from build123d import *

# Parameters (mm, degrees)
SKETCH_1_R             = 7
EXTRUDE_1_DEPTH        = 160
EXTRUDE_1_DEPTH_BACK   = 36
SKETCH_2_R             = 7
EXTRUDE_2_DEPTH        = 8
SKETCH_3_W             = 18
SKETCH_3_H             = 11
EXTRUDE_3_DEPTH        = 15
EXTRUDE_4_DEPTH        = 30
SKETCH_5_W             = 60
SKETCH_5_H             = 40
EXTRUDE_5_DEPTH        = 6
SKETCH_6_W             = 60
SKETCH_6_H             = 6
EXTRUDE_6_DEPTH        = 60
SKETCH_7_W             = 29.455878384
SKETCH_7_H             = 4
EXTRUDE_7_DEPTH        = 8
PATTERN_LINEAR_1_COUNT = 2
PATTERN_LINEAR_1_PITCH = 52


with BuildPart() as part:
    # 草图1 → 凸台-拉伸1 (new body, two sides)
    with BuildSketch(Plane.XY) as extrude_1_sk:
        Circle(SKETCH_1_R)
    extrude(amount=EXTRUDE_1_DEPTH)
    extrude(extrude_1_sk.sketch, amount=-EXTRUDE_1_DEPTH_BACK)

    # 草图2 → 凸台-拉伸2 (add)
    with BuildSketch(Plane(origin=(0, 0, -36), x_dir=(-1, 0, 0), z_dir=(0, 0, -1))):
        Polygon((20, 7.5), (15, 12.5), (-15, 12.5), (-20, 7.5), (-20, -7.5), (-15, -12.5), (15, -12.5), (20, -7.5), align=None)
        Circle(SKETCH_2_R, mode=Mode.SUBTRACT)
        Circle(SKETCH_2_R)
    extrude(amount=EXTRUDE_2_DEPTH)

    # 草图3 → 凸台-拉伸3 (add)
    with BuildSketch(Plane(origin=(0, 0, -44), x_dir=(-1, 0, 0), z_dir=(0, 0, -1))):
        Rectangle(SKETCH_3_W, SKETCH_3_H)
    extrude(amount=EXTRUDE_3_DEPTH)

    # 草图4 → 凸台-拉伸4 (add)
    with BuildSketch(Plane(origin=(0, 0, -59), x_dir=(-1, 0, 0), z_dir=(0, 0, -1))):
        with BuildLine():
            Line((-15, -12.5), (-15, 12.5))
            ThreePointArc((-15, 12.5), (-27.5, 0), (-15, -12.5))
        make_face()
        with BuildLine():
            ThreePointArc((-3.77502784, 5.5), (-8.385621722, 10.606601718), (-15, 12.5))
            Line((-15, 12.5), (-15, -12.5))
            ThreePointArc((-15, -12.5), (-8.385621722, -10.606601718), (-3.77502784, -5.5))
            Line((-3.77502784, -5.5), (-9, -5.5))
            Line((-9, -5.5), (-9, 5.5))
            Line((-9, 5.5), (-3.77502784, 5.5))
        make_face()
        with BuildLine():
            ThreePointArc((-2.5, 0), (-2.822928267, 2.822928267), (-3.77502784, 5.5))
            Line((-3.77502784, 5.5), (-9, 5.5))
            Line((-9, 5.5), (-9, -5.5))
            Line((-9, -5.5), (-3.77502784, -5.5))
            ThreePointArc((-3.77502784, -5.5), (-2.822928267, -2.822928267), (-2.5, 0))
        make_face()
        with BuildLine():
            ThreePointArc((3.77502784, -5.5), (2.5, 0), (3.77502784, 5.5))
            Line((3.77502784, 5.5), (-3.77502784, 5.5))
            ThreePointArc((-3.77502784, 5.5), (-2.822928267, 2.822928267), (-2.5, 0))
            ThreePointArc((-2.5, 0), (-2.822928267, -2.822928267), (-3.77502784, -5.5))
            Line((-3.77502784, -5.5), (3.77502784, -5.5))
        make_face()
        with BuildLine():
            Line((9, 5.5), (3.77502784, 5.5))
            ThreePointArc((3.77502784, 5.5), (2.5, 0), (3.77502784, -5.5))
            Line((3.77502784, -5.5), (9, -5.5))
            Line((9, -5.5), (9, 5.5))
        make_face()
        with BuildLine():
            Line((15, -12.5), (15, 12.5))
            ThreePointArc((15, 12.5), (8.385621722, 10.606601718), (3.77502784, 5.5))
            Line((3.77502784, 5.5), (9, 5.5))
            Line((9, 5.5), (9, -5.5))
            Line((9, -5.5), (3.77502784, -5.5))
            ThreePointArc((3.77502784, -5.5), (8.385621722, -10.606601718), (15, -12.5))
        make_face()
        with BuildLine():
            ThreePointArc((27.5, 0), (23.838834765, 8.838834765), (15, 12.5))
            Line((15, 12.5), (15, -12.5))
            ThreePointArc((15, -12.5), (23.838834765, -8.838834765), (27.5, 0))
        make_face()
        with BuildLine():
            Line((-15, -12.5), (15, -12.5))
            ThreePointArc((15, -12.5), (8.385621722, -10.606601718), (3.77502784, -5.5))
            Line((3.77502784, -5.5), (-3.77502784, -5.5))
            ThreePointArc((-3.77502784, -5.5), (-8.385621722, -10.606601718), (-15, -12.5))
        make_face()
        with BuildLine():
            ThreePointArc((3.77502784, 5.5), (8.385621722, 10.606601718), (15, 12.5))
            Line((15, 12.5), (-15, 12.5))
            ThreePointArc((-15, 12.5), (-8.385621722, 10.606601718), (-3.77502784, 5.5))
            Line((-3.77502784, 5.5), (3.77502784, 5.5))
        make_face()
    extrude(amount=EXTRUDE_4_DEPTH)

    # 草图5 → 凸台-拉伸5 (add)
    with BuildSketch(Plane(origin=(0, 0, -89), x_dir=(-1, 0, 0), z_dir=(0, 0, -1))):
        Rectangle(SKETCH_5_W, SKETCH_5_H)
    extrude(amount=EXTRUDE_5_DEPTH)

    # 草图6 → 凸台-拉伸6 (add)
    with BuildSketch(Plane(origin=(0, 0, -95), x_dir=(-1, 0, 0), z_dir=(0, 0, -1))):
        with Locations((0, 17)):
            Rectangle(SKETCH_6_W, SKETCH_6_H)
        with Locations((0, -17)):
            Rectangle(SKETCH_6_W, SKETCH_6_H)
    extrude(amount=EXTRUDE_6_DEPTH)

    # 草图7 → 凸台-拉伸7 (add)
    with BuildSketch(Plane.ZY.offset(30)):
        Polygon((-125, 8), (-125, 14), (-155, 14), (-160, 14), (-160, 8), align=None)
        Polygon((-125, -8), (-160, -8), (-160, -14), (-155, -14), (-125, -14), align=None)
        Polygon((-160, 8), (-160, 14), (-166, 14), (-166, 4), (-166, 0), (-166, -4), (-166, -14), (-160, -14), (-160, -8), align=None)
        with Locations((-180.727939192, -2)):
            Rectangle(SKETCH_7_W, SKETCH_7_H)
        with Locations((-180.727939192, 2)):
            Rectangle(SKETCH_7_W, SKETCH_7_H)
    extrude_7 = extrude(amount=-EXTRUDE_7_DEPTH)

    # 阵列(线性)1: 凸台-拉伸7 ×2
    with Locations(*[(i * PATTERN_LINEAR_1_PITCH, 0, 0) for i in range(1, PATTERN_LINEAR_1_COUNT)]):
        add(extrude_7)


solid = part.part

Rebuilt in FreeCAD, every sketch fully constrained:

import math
import FreeCAD as App
import Part
import Sketcher

doc = App.newDocument("Part")
body = doc.addObject("PartDesign::Body", "Body")

sketch1 = doc.addObject("Sketcher::SketchObject", "Sketch")
body.addObject(sketch1)
sketch1.AttachmentSupport = (doc.XY_Plane, [""])
sketch1.MapMode = "FlatFace"
sketch1.addGeometry(Part.Circle(App.Vector(0, 0, 0), App.Vector(0, 0, 1), 7), False)
sketch1.addConstraint(Sketcher.Constraint("Coincident", 0, 3, -1, 1))
sketch1.addConstraint(Sketcher.Constraint("Diameter", 0, 14.0))
pad1 = doc.addObject("PartDesign::Pad", "Pad")
body.addObject(pad1)
pad1.Profile = sketch1
pad1.Type = "TwoLengths"
pad1.Length = 160
pad1.Length2 = 36

sketch2 = doc.addObject("Sketcher::SketchObject", "Sketch001")
body.addObject(sketch2)
sketch2.AttachmentSupport = (doc.XY_Plane, [""])
sketch2.MapMode = "FlatFace"
sketch2.AttachmentOffset = App.Placement(App.Vector(0, 0, -36), App.Rotation())
sketch2.addGeometry(Part.LineSegment(App.Vector(-20, 7.5, 0), App.Vector(-15, 12.5, 0)), False)
sketch2.addGeometry(Part.LineSegment(App.Vector(-15, 12.5, 0), App.Vector(15, 12.5, 0)), False)
sketch2.addGeometry(Part.LineSegment(App.Vector(15, 12.5, 0), App.Vector(20, 7.5, 0)), False)
sketch2.addGeometry(Part.LineSegment(App.Vector(20, 7.5, 0), App.Vector(20, -7.5, 0)), False)
sketch2.addGeometry(Part.LineSegment(App.Vector(20, -7.5, 0), App.Vector(15, -12.5, 0)), False)
sketch2.addGeometry(Part.LineSegment(App.Vector(15, -12.5, 0), App.Vector(-15, -12.5, 0)), False)
sketch2.addGeometry(Part.LineSegment(App.Vector(-15, -12.5, 0), App.Vector(-20, -7.5, 0)), False)
sketch2.addGeometry(Part.LineSegment(App.Vector(-20, -7.5, 0), App.Vector(-20, 7.5, 0)), False)
sketch2.addConstraint(Sketcher.Constraint("Coincident", 0, 2, 1, 1))
sketch2.addConstraint(Sketcher.Constraint("Coincident", 1, 2, 2, 1))
sketch2.addConstraint(Sketcher.Constraint("Coincident", 2, 2, 3, 1))
sketch2.addConstraint(Sketcher.Constraint("Coincident", 3, 2, 4, 1))
sketch2.addConstraint(Sketcher.Constraint("Coincident", 4, 2, 5, 1))
sketch2.addConstraint(Sketcher.Constraint("Coincident", 5, 2, 6, 1))
sketch2.addConstraint(Sketcher.Constraint("Coincident", 6, 2, 7, 1))
sketch2.addConstraint(Sketcher.Constraint("Coincident", 7, 2, 0, 1))
sketch2.addConstraint(Sketcher.Constraint("Horizontal", 1))
sketch2.addConstraint(Sketcher.Constraint("Vertical", 3))
sketch2.addConstraint(Sketcher.Constraint("Horizontal", 5))
sketch2.addConstraint(Sketcher.Constraint("Vertical", 7))
sketch2.addConstraint(Sketcher.Constraint("Symmetric", 0, 2, 4, 2, -1, 1))
sketch2.addConstraint(Sketcher.Constraint("Symmetric", 2, 2, 6, 2, -1, 1))
sketch2.addConstraint(Sketcher.Constraint("Perpendicular", 0, 2))
sketch2.addConstraint(Sketcher.Constraint("Perpendicular", 2, 4))
sketch2.addConstraint(Sketcher.Constraint("Perpendicular", 4, 6))
sketch2.addConstraint(Sketcher.Constraint("Horizontal", 3, 2, 6, 2))
sketch2.addConstraint(Sketcher.Constraint("Vertical", 1, 2, 4, 2))
sketch2.addConstraint(Sketcher.Constraint("DistanceX", 1, 1, 1, 2, 30.0))
sketch2.addConstraint(Sketcher.Constraint("DistanceY", 3, 2, 3, 1, 15.0))
sketch2.addConstraint(Sketcher.Constraint("DistanceX", -1, 1, 2, 2, 20.0))
pad2 = doc.addObject("PartDesign::Pad", "Pad001")
body.addObject(pad2)
pad2.Profile = sketch2
pad2.Length = 8
pad2.Reversed = True

sketch3 = doc.addObject("Sketcher::SketchObject", "Sketch002")
body.addObject(sketch3)
sketch3.AttachmentSupport = (doc.XY_Plane, [""])
sketch3.MapMode = "FlatFace"
sketch3.AttachmentOffset = App.Placement(App.Vector(0, 0, -44), App.Rotation())
sketch3.addGeometry(Part.LineSegment(App.Vector(9, 5.5, 0), App.Vector(9, -5.5, 0)), False)
sketch3.addGeometry(Part.LineSegment(App.Vector(9, -5.5, 0), App.Vector(-9, -5.5, 0)), False)
sketch3.addGeometry(Part.LineSegment(App.Vector(-9, -5.5, 0), App.Vector(-9, 5.5, 0)), False)
sketch3.addGeometry(Part.LineSegment(App.Vector(-9, 5.5, 0), App.Vector(9, 5.5, 0)), False)
sketch3.addConstraint(Sketcher.Constraint("Coincident", 0, 2, 1, 1))
sketch3.addConstraint(Sketcher.Constraint("Coincident", 1, 2, 2, 1))
sketch3.addConstraint(Sketcher.Constraint("Coincident", 2, 2, 3, 1))
sketch3.addConstraint(Sketcher.Constraint("Coincident", 3, 2, 0, 1))
sketch3.addConstraint(Sketcher.Constraint("Vertical", 0))
sketch3.addConstraint(Sketcher.Constraint("Horizontal", 1))
sketch3.addConstraint(Sketcher.Constraint("Vertical", 2))
sketch3.addConstraint(Sketcher.Constraint("Horizontal", 3))
sketch3.addConstraint(Sketcher.Constraint("Symmetric", 0, 2, 2, 2, -1, 1))
sketch3.addConstraint(Sketcher.Constraint("DistanceX", 1, 2, 1, 1, 18.0))
sketch3.addConstraint(Sketcher.Constraint("DistanceY", 0, 2, 0, 1, 11.0))
pad3 = doc.addObject("PartDesign::Pad", "Pad002")
body.addObject(pad3)
pad3.Profile = sketch3
pad3.Length = 15
pad3.Reversed = True

sketch4 = doc.addObject("Sketcher::SketchObject", "Sketch003")
body.addObject(sketch4)
sketch4.AttachmentSupport = (doc.XY_Plane, [""])
sketch4.MapMode = "FlatFace"
sketch4.AttachmentOffset = App.Placement(App.Vector(0, 0, -59), App.Rotation())
sketch4.addGeometry(Part.ArcOfCircle(Part.Circle(App.Vector(15, 0, 0), App.Vector(0, 0, 1), 12.5), math.radians(-90), math.radians(90)), False)
sketch4.addGeometry(Part.LineSegment(App.Vector(15, -12.5, 0), App.Vector(-15, -12.5, 0)), False)
sketch4.addGeometry(Part.ArcOfCircle(Part.Circle(App.Vector(-15, 0, 0), App.Vector(0, 0, 1), 12.5), math.radians(180), math.radians(270)), False)
sketch4.addGeometry(Part.ArcOfCircle(Part.Circle(App.Vector(-15, 0, 0), App.Vector(0, 0, 1), 12.5), math.radians(90), math.radians(180)), False)
sketch4.addGeometry(Part.LineSegment(App.Vector(-15, 12.5, 0), App.Vector(15, 12.5, 0)), False)
sketch4.addConstraint(Sketcher.Constraint("Tangent", 0, 1, 1, 1))
sketch4.addConstraint(Sketcher.Constraint("Tangent", 1, 2, 2, 2))
sketch4.addConstraint(Sketcher.Constraint("Tangent", 2, 1, 3, 2))
sketch4.addConstraint(Sketcher.Constraint("Tangent", 3, 1, 4, 1))
sketch4.addConstraint(Sketcher.Constraint("Tangent", 4, 2, 0, 2))
sketch4.addConstraint(Sketcher.Constraint("Horizontal", 1))
sketch4.addConstraint(Sketcher.Constraint("Horizontal", 4))
sketch4.addConstraint(Sketcher.Constraint("Equal", 0, 2))
sketch4.addConstraint(Sketcher.Constraint("Symmetric", 0, 3, 2, 3, -1, 1))
sketch4.addConstraint(Sketcher.Constraint("PointOnObject", 2, 1, -1))
sketch4.addConstraint(Sketcher.Constraint("Radius", 0, 12.5))
sketch4.addConstraint(Sketcher.Constraint("DistanceX", 1, 2, 1, 1, 30.0))
pad4 = doc.addObject("PartDesign::Pad", "Pad003")
body.addObject(pad4)
pad4.Profile = sketch4
pad4.Length = 30
pad4.Reversed = True

sketch5 = doc.addObject("Sketcher::SketchObject", "Sketch004")
body.addObject(sketch5)
sketch5.AttachmentSupport = (doc.XY_Plane, [""])
sketch5.MapMode = "FlatFace"
sketch5.AttachmentOffset = App.Placement(App.Vector(0, 0, -89), App.Rotation())
sketch5.addGeometry(Part.LineSegment(App.Vector(30, 20, 0), App.Vector(30, -20, 0)), False)
sketch5.addGeometry(Part.LineSegment(App.Vector(30, -20, 0), App.Vector(-30, -20, 0)), False)
sketch5.addGeometry(Part.LineSegment(App.Vector(-30, -20, 0), App.Vector(-30, 20, 0)), False)
sketch5.addGeometry(Part.LineSegment(App.Vector(-30, 20, 0), App.Vector(30, 20, 0)), False)
sketch5.addConstraint(Sketcher.Constraint("Coincident", 0, 2, 1, 1))
sketch5.addConstraint(Sketcher.Constraint("Coincident", 1, 2, 2, 1))
sketch5.addConstraint(Sketcher.Constraint("Coincident", 2, 2, 3, 1))
sketch5.addConstraint(Sketcher.Constraint("Coincident", 3, 2, 0, 1))
sketch5.addConstraint(Sketcher.Constraint("Vertical", 0))
sketch5.addConstraint(Sketcher.Constraint("Horizontal", 1))
sketch5.addConstraint(Sketcher.Constraint("Vertical", 2))
sketch5.addConstraint(Sketcher.Constraint("Horizontal", 3))
sketch5.addConstraint(Sketcher.Constraint("Symmetric", 0, 2, 2, 2, -1, 1))
sketch5.addConstraint(Sketcher.Constraint("DistanceX", 1, 2, 1, 1, 60.0))
sketch5.addConstraint(Sketcher.Constraint("DistanceY", 0, 2, 0, 1, 40.0))
pad5 = doc.addObject("PartDesign::Pad", "Pad004")
body.addObject(pad5)
pad5.Profile = sketch5
pad5.Length = 6
pad5.Reversed = True

sketch6 = doc.addObject("Sketcher::SketchObject", "Sketch005")
body.addObject(sketch6)
sketch6.AttachmentSupport = (doc.XY_Plane, [""])
sketch6.MapMode = "FlatFace"
sketch6.AttachmentOffset = App.Placement(App.Vector(0, 0, -95), App.Rotation())
sketch6.addGeometry(Part.LineSegment(App.Vector(30, 20, 0), App.Vector(30, 14, 0)), False)
sketch6.addGeometry(Part.LineSegment(App.Vector(30, 14, 0), App.Vector(-30, 14, 0)), False)
sketch6.addGeometry(Part.LineSegment(App.Vector(-30, 14, 0), App.Vector(-30, 20, 0)), False)
sketch6.addGeometry(Part.LineSegment(App.Vector(-30, 20, 0), App.Vector(30, 20, 0)), False)
sketch6.addGeometry(Part.LineSegment(App.Vector(30, -14, 0), App.Vector(30, -20, 0)), False)
sketch6.addGeometry(Part.LineSegment(App.Vector(30, -20, 0), App.Vector(-30, -20, 0)), False)
sketch6.addGeometry(Part.LineSegment(App.Vector(-30, -20, 0), App.Vector(-30, -14, 0)), False)
sketch6.addGeometry(Part.LineSegment(App.Vector(-30, -14, 0), App.Vector(30, -14, 0)), False)
sketch6.addConstraint(Sketcher.Constraint("Coincident", 0, 2, 1, 1))
sketch6.addConstraint(Sketcher.Constraint("Coincident", 1, 2, 2, 1))
sketch6.addConstraint(Sketcher.Constraint("Coincident", 2, 2, 3, 1))
sketch6.addConstraint(Sketcher.Constraint("Coincident", 3, 2, 0, 1))
sketch6.addConstraint(Sketcher.Constraint("Coincident", 4, 2, 5, 1))
sketch6.addConstraint(Sketcher.Constraint("Coincident", 5, 2, 6, 1))
sketch6.addConstraint(Sketcher.Constraint("Coincident", 6, 2, 7, 1))
sketch6.addConstraint(Sketcher.Constraint("Coincident", 7, 2, 4, 1))
sketch6.addConstraint(Sketcher.Constraint("Vertical", 0))
sketch6.addConstraint(Sketcher.Constraint("Horizontal", 1))
sketch6.addConstraint(Sketcher.Constraint("Vertical", 2))
sketch6.addConstraint(Sketcher.Constraint("Horizontal", 3))
sketch6.addConstraint(Sketcher.Constraint("Vertical", 4))
sketch6.addConstraint(Sketcher.Constraint("Horizontal", 5))
sketch6.addConstraint(Sketcher.Constraint("Vertical", 6))
sketch6.addConstraint(Sketcher.Constraint("Horizontal", 7))
sketch6.addConstraint(Sketcher.Constraint("Symmetric", 2, 2, 4, 2, -1, 1))
sketch6.addConstraint(Sketcher.Constraint("Symmetric", 0, 2, 6, 2, -1, 1))
sketch6.addConstraint(Sketcher.Constraint("Vertical", 3, 2, 4, 2))
sketch6.addConstraint(Sketcher.Constraint("DistanceX", 1, 2, 1, 1, 60.0))
sketch6.addConstraint(Sketcher.Constraint("DistanceY", 0, 2, 0, 1, 6.0))
sketch6.addConstraint(Sketcher.Constraint("DistanceY", -1, 1, 0, 2, 14.0))
pad6 = doc.addObject("PartDesign::Pad", "Pad005")
body.addObject(pad6)
pad6.Profile = sketch6
pad6.Length = 60
pad6.Reversed = True

sketch7 = doc.addObject("Sketcher::SketchObject", "Sketch006")
body.addObject(sketch7)
sketch7.AttachmentSupport = (doc.YZ_Plane, [""])
sketch7.MapMode = "FlatFace"
sketch7.AttachmentOffset = App.Placement(App.Vector(0, 0, -30), App.Rotation())
sketch7.addGeometry(Part.LineSegment(App.Vector(8, -125, 0), App.Vector(14, -125, 0)), False)
sketch7.addGeometry(Part.LineSegment(App.Vector(14, -125, 0), App.Vector(14, -166, 0)), False)
sketch7.addGeometry(Part.LineSegment(App.Vector(14, -166, 0), App.Vector(4, -166, 0)), False)
sketch7.addGeometry(Part.LineSegment(App.Vector(4, -166, 0), App.Vector(4, -195.455878, 0)), False)
sketch7.addGeometry(Part.LineSegment(App.Vector(4, -195.455878, 0), App.Vector(-4, -195.455878, 0)), False)
sketch7.addGeometry(Part.LineSegment(App.Vector(-4, -195.455878, 0), App.Vector(-4, -166, 0)), False)
sketch7.addGeometry(Part.LineSegment(App.Vector(-4, -166, 0), App.Vector(-14, -166, 0)), False)
sketch7.addGeometry(Part.LineSegment(App.Vector(-14, -166, 0), App.Vector(-14, -125, 0)), False)
sketch7.addGeometry(Part.LineSegment(App.Vector(-14, -125, 0), App.Vector(-8, -125, 0)), False)
sketch7.addGeometry(Part.LineSegment(App.Vector(-8, -125, 0), App.Vector(-8, -160, 0)), False)
sketch7.addGeometry(Part.LineSegment(App.Vector(-8, -160, 0), App.Vector(8, -160, 0)), False)
sketch7.addGeometry(Part.LineSegment(App.Vector(8, -160, 0), App.Vector(8, -125, 0)), False)
sketch7.addConstraint(Sketcher.Constraint("Coincident", 0, 2, 1, 1))
sketch7.addConstraint(Sketcher.Constraint("Coincident", 1, 2, 2, 1))
sketch7.addConstraint(Sketcher.Constraint("Coincident", 2, 2, 3, 1))
sketch7.addConstraint(Sketcher.Constraint("Coincident", 3, 2, 4, 1))
sketch7.addConstraint(Sketcher.Constraint("Coincident", 4, 2, 5, 1))
sketch7.addConstraint(Sketcher.Constraint("Coincident", 5, 2, 6, 1))
sketch7.addConstraint(Sketcher.Constraint("Coincident", 6, 2, 7, 1))
sketch7.addConstraint(Sketcher.Constraint("Coincident", 7, 2, 8, 1))
sketch7.addConstraint(Sketcher.Constraint("Coincident", 8, 2, 9, 1))
sketch7.addConstraint(Sketcher.Constraint("Coincident", 9, 2, 10, 1))
sketch7.addConstraint(Sketcher.Constraint("Coincident", 10, 2, 11, 1))
sketch7.addConstraint(Sketcher.Constraint("Coincident", 11, 2, 0, 1))
sketch7.addConstraint(Sketcher.Constraint("Horizontal", 0))
sketch7.addConstraint(Sketcher.Constraint("Vertical", 1))
sketch7.addConstraint(Sketcher.Constraint("Horizontal", 2))
sketch7.addConstraint(Sketcher.Constraint("Vertical", 3))
sketch7.addConstraint(Sketcher.Constraint("Horizontal", 4))
sketch7.addConstraint(Sketcher.Constraint("Vertical", 5))
sketch7.addConstraint(Sketcher.Constraint("Horizontal", 6))
sketch7.addConstraint(Sketcher.Constraint("Vertical", 7))
sketch7.addConstraint(Sketcher.Constraint("Horizontal", 8))
sketch7.addConstraint(Sketcher.Constraint("Vertical", 9))
sketch7.addConstraint(Sketcher.Constraint("Horizontal", 10))
sketch7.addConstraint(Sketcher.Constraint("Vertical", 11))
sketch7.addConstraint(Sketcher.Constraint("Symmetric", 2, 2, 5, 2, -2))
sketch7.addConstraint(Sketcher.Constraint("Symmetric", 0, 2, 7, 2, -2))
sketch7.addConstraint(Sketcher.Constraint("Equal", 0, 8))
sketch7.addConstraint(Sketcher.Constraint("DistanceX", 0, 1, 0, 2, 6.0))
sketch7.addConstraint(Sketcher.Constraint("DistanceX", 2, 2, 2, 1, 10.0))
sketch7.addConstraint(Sketcher.Constraint("DistanceX", 4, 2, 4, 1, 8.0))
sketch7.addConstraint(Sketcher.Constraint("DistanceY", 1, 2, 1, 1, 41.0))
sketch7.addConstraint(Sketcher.Constraint("DistanceY", 9, 2, 9, 1, 35.0))
sketch7.addConstraint(Sketcher.Constraint("DistanceY", 0, 2, -1, 1, 125.0))
sketch7.addConstraint(Sketcher.Constraint("DistanceY", 3, 2, 3, 1, 29.455878))
pad7 = doc.addObject("PartDesign::Pad", "Pad006")
body.addObject(pad7)
pad7.Profile = sketch7
pad7.Length = 8
doc.recompute()

linearpattern = doc.addObject("PartDesign::LinearPattern", "LinearPattern")
body.addObject(linearpattern)
linearpattern.Originals = [pad7]
linearpattern.Direction = (doc.X_Axis, [""])
linearpattern.Mode = "offset"
linearpattern.Offset = 52
linearpattern.Occurrences = 2
body.Tip = linearpattern

doc.recompute()
